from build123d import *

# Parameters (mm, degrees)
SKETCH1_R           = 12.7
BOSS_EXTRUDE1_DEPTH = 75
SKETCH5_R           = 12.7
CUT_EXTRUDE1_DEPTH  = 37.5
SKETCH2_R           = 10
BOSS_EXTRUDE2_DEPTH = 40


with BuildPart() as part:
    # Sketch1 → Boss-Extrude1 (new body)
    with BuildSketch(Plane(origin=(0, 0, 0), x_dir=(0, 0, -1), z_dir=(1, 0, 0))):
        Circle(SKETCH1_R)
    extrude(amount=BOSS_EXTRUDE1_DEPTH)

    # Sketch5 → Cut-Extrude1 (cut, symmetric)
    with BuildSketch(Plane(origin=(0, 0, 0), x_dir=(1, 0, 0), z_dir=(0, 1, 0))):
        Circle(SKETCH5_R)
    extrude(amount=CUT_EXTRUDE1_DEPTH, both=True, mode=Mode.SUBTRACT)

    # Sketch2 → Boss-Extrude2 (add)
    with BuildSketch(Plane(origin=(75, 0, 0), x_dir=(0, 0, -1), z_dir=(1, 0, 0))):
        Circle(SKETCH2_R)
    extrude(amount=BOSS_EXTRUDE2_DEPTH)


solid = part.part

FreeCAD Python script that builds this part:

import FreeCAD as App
import Part
import Sketcher

V = App.Vector

doc = App.newDocument("Part")
body = doc.addObject("PartDesign::Body", "Body")

# Sketch on YZ plane
sketch1 = body.newObject("Sketcher::SketchObject", "Sketch")
sketch1.AttachmentSupport = (doc.getObject("YZ_Plane"), [""])
sketch1.MapMode = "FlatFace"
sketch1.addGeometry(Part.Circle(V(0, 0, 0), V(0, 0, 1), 13), False)
sketch1.addConstraint([
    Sketcher.Constraint("Coincident", 0, 3, -1, 1),
    Sketcher.Constraint("Diameter", 0, 25.4),
])
pad1 = body.newObject("PartDesign::Pad", "Pad")
pad1.Profile = sketch1
pad1.Length = 75

# Sketch on XZ plane
sketch2 = body.newObject("Sketcher::SketchObject", "Sketch001")
sketch2.AttachmentSupport = (doc.getObject("XZ_Plane"), [""])
sketch2.MapMode = "FlatFace"
sketch2.addGeometry(Part.Circle(V(0, 0, 0), V(0, 0, 1), 13), False)
sketch2.addConstraint([
    Sketcher.Constraint("Coincident", 0, 3, -1, 1),
    Sketcher.Constraint("Diameter", 0, 25.4),
])
pocket1 = body.newObject("PartDesign::Pocket", "Pocket")
pocket1.Profile = sketch2
pocket1.Length = 75
pocket1.Midplane = True

# Sketch on YZ plane
sketch3 = body.newObject("Sketcher::SketchObject", "Sketch002")
sketch3.AttachmentSupport = (doc.getObject("YZ_Plane"), [""])
sketch3.MapMode = "FlatFace"
sketch3.AttachmentOffset = App.Placement(V(0, 0, 75), App.Rotation())
sketch3.addGeometry(Part.Circle(V(0, 0, 0), V(0, 0, 1), 10), False)
sketch3.addConstraint([
    Sketcher.Constraint("Coincident", 0, 3, -1, 1),
    Sketcher.Constraint("Diameter", 0, 20.0),
])
pad2 = body.newObject("PartDesign::Pad", "Pad001")
pad2.Profile = sketch3
pad2.Length = 40

doc.recompute()
